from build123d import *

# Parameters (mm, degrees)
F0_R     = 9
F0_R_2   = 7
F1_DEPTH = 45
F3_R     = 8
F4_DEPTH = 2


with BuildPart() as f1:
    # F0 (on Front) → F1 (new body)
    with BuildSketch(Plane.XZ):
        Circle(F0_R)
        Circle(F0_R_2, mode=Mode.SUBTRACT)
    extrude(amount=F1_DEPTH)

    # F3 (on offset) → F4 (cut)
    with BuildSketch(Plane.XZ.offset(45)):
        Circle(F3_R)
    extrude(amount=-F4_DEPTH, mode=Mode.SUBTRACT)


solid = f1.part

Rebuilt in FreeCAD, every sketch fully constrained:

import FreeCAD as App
import Part
import Sketcher
Q = App.Units.Quantity

doc = App.newDocument("Part")
body = doc.addObject("PartDesign::Body", "Body")

sketch1 = body.newObject("Sketcher::SketchObject", "Sketch")
sketch1.AttachmentSupport = (doc.getObject("XZ_Plane"), [""])
sketch1.MapMode = "FlatFace"
sketch1.addGeometry([
    Part.Circle(App.Vector(0, 0, 0), App.Vector(0, 0, 1), 9),
    Part.Circle(App.Vector(0, 0, 0), App.Vector(0, 0, 1), 7),
], False)
sketch1.addConstraint([
    Sketcher.Constraint("Coincident", 0, 3, -1, 1),
    Sketcher.Constraint("Coincident", 1, 3, -1, 1),
    Sketcher.Constraint("Diameter", 0, Q("18 mm")),
    Sketcher.Constraint("Diameter", 1, Q("14 mm")),
])
pad1 = body.newObject("PartDesign::Pad", "Pad")
pad1.Profile = sketch1
pad1.Length = 45

sketch2 = body.newObject("Sketcher::SketchObject", "Sketch001")
sketch2.AttachmentSupport = (doc.getObject("XZ_Plane"), [""])
sketch2.MapMode = "FlatFace"
sketch2.AttachmentOffset = App.Placement(App.Vector(0, 0, 45), App.Rotation())
sketch2.addGeometry(Part.Circle(App.Vector(0, 0, 0), App.Vector(0, 0, 1), 8), False)
sketch2.addConstraint([
    Sketcher.Constraint("Coincident", 0, 3, -1, 1),
    Sketcher.Constraint("Diameter", 0, Q("16 mm")),
])
pocket1 = body.newObject("PartDesign::Pocket", "Pocket")
pocket1.Profile = sketch2
pocket1.Length = 2

doc.recompute()
